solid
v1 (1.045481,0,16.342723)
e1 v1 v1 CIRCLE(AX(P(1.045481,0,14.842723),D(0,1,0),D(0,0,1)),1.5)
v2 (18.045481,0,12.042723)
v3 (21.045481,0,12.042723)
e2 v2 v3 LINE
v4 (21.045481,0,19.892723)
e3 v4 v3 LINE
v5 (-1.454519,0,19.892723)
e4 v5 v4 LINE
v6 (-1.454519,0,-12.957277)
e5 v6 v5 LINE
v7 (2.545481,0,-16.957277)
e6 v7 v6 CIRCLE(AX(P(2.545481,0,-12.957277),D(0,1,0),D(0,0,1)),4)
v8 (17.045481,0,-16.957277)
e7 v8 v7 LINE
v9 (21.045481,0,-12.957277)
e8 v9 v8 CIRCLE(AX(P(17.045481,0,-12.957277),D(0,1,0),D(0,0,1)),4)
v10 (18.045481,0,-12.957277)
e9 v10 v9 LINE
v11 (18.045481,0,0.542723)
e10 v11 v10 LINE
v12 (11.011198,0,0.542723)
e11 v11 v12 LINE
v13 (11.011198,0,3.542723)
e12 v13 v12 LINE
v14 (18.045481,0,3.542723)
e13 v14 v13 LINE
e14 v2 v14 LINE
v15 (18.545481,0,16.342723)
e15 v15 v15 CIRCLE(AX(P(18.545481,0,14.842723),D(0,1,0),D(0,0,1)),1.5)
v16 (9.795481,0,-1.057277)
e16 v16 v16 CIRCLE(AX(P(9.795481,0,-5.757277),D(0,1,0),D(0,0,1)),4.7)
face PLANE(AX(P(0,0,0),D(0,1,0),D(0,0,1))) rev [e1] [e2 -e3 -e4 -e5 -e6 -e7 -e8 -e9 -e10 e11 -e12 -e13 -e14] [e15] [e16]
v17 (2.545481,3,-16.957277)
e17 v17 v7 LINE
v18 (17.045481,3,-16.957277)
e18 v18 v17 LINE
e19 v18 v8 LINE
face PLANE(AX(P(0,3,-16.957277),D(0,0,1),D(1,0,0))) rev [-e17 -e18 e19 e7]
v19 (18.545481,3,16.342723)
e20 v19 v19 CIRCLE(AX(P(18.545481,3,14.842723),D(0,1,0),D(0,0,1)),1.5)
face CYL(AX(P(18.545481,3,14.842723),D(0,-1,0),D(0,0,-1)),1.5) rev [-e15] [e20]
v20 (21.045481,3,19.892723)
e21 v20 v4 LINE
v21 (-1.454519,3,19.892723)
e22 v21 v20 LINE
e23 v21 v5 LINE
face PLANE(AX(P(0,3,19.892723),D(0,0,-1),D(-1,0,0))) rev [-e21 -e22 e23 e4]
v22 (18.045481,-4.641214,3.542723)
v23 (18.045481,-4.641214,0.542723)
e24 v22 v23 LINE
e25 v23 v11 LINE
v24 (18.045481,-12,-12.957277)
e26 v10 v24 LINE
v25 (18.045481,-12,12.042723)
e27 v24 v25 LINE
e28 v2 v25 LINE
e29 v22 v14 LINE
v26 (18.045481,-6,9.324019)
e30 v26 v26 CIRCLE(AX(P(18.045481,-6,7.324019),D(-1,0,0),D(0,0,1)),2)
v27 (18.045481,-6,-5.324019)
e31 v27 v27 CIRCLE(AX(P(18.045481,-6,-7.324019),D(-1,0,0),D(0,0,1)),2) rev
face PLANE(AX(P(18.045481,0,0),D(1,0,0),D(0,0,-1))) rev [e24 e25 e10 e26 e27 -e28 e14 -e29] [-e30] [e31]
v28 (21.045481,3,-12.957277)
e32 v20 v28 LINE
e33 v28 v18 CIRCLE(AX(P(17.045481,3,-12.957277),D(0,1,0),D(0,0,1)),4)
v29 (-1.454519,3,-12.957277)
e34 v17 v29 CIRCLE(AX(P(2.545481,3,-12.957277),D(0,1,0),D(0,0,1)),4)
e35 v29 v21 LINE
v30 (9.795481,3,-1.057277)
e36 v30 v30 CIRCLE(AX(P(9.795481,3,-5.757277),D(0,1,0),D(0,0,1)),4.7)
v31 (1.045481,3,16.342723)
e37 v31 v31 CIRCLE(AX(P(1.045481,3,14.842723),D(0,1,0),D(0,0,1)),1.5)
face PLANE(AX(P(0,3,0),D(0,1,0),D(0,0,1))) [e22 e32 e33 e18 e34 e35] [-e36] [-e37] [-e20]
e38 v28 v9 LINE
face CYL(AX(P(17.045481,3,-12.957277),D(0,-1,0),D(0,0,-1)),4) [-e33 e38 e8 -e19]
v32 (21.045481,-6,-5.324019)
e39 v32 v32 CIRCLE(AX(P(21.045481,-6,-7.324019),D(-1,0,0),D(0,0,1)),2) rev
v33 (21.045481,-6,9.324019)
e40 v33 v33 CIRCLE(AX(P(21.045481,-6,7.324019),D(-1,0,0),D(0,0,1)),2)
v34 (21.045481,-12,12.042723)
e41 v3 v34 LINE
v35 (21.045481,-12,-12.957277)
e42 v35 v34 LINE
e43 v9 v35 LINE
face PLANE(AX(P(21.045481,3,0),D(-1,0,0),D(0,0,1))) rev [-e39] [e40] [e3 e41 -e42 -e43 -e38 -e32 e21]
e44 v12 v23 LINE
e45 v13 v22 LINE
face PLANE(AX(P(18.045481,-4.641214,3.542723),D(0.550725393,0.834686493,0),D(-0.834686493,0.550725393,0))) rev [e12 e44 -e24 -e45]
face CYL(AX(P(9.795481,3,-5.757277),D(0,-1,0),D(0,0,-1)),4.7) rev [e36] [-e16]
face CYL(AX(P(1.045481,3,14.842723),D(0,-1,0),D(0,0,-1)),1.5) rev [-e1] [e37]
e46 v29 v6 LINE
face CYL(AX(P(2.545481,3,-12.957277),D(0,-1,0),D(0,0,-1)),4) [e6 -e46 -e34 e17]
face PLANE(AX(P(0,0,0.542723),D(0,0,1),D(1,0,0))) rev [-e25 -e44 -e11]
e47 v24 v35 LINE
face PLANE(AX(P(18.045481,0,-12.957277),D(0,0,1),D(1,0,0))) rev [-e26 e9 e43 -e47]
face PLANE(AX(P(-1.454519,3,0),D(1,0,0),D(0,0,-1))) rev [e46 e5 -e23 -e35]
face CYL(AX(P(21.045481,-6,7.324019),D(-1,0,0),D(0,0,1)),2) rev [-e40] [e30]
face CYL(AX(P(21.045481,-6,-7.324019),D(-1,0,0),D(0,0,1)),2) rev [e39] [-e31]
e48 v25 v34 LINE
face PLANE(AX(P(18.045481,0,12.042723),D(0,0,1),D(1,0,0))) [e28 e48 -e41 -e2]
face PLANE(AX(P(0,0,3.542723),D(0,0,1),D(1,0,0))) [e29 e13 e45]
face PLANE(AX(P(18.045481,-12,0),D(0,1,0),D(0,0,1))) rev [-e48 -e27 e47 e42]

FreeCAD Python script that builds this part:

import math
import FreeCAD as App
import Part
import Sketcher
from FreeCAD import Vector

doc = App.newDocument("Part")
body = doc.addObject("PartDesign::Body", "Body")

# Sketch on XZ plane
sketch1 = body.newObject("Sketcher::SketchObject", "Sketch")
sketch1.AttachmentSupport = (doc.getObject("XZ_Plane"), [""])
sketch1.MapMode = "FlatFace"
sketch1.addGeometry([
    Part.ArcOfCircle(Part.Circle(Vector(17, -13, 0), Vector(0, 0, 1), 4), math.radians(-90), math.radians(0)),  # 0
    Part.LineSegment(Vector(17, -17, 0), Vector(2.5, -17, 0)),  # 1
    Part.ArcOfCircle(Part.Circle(Vector(2.5, -13, 0), Vector(0, 0, 1), 4), math.radians(180), math.radians(270)),  # 2
    Part.LineSegment(Vector(-1.5, -13, 0), Vector(-1.5, 19.9, 0)),  # 3
    Part.LineSegment(Vector(-1.5, 19.9, 0), Vector(21, 19.9, 0)),  # 4
    Part.LineSegment(Vector(21, 19.9, 0), Vector(21, -13, 0)),  # 5
    Part.Circle(Vector(1, 14.8, 0), Vector(0, 0, 1), 1.5),  # 6
    Part.Circle(Vector(18.5, 14.8, 0), Vector(0, 0, 1), 1.5),  # 7
    Part.Circle(Vector(9.8, -5.8, 0), Vector(0, 0, 1), 4.7),  # 8
], False)
sketch1.addConstraint([
    Sketcher.Constraint("Tangent", 0, 1, 1, 1),
    Sketcher.Constraint("Tangent", 1, 2, 2, 2),
    Sketcher.Constraint("Tangent", 2, 1, 3, 1),
    Sketcher.Constraint("Coincident", 3, 2, 4, 1),
    Sketcher.Constraint("Coincident", 4, 2, 5, 1),
    Sketcher.Constraint("Tangent", 5, 2, 0, 2),
    Sketcher.Constraint("Horizontal", 1),
    Sketcher.Constraint("Vertical", 3),
    Sketcher.Constraint("Horizontal", 4),
    Sketcher.Constraint("Vertical", 5),
    Sketcher.Constraint("Equal", 0, 2),
    Sketcher.Constraint("Equal", 6, 7),
    Sketcher.Constraint("Horizontal", 6, 3, 7, 3),
    Sketcher.Constraint("Diameter", 6, 3.0),
    Sketcher.Constraint("Radius", 0, 4.0),
    Sketcher.Constraint("Diameter", 8, 9.4),
    Sketcher.Constraint("DistanceX", 1, 2, 1, 1, 14.5),
    Sketcher.Constraint("DistanceX", 6, 3, 0, 3, 16.0),
    Sketcher.Constraint("DistanceX", 2, 3, 7, 3, 16.0),
    Sketcher.Constraint("DistanceY", 3, 1, 3, 2, 32.85),
    Sketcher.Constraint("DistanceY", 2, 3, 6, 3, 27.8),
    Sketcher.Constraint("DistanceY", 0, 3, 8, 3, 7.2),
    Sketcher.Constraint("DistanceX", 8, 3, 0, 3, 7.25),
    Sketcher.Constraint("DistanceX", -1, 1, 0, 3, 17.045481),
    Sketcher.Constraint("DistanceY", 0, 3, -1, 1, 12.957277),
])
pad1 = body.newObject("PartDesign::Pad", "Pad")
pad1.Profile = sketch1
pad1.Length = 3
pad1.Reversed = True

# Sketch on YZ plane
sketch2 = body.newObject("Sketcher::SketchObject", "Sketch001")
sketch2.AttachmentSupport = (doc.getObject("YZ_Plane"), [""])
sketch2.MapMode = "FlatFace"
sketch2.AttachmentOffset = App.Placement(Vector(0, 0, 21.045481), App.Rotation())
sketch2.addGeometry([
    Part.LineSegment(Vector(0, 12, 0), Vector(-12, 12, 0)),
    Part.LineSegment(Vector(-12, 12, 0), Vector(-12, -13, 0)),
    Part.LineSegment(Vector(-12, -13, 0), Vector(0, -13, 0)),
    Part.LineSegment(Vector(0, -13, 0), Vector(0, 12, 0)),
], False)
sketch2.addConstraint([
    Sketcher.Constraint("Coincident", 0, 2, 1, 1),
    Sketcher.Constraint("Coincident", 1, 2, 2, 1),
    Sketcher.Constraint("Coincident", 2, 2, 3, 1),
    Sketcher.Constraint("Coincident", 3, 2, 0, 1),
    Sketcher.Constraint("Horizontal", 0),
    Sketcher.Constraint("Vertical", 1),
    Sketcher.Constraint("Horizontal", 2),
    Sketcher.Constraint("Vertical", 3),
    Sketcher.Constraint("PointOnObject", 2, 2, -2),
    Sketcher.Constraint("DistanceX", 0, 2, 0, 1, 12.0),
    Sketcher.Constraint("DistanceY", 1, 2, 1, 1, 25.0),
    Sketcher.Constraint("DistanceY", -1, 1, 0, 2, 12.042723),
])
pad2 = body.newObject("PartDesign::Pad", "Pad001")
pad2.Profile = sketch2
pad2.Length = 3
pad2.Reversed = True

# Sketch on YZ plane
sketch3 = body.newObject("Sketcher::SketchObject", "Sketch002")
sketch3.AttachmentSupport = (doc.getObject("YZ_Plane"), [""])
sketch3.MapMode = "FlatFace"
sketch3.AttachmentOffset = App.Placement(Vector(0, 0, 18.045481), App.Rotation())
sketch3.addGeometry([
    Part.Circle(Vector(-6, 7.3, 0), Vector(0, 0, 1), 2),
    Part.Circle(Vector(-6, -7.3, 0), Vector(0, 0, 1), 2),
], False)
sketch3.addConstraint([
    Sketcher.Constraint("Equal", 0, 1),
    Sketcher.Constraint("Symmetric", 0, 3, 1, 3, -1),
    Sketcher.Constraint("Diameter", 0, 4.0),
    Sketcher.Constraint("DistanceX", 0, 3, -1, 1, 6.0),
    Sketcher.Constraint("DistanceY", -1, 1, 0, 3, 7.324019),
])
pocket1 = body.newObject("PartDesign::Pocket", "Pocket")
pocket1.Profile = sketch3
pocket1.Type = "ThroughAll"
pocket1.Reversed = True

# Sketch on XY plane
sketch4 = body.newObject("Sketcher::SketchObject", "Sketch003")
sketch4.AttachmentSupport = (doc.getObject("XY_Plane"), [""])
sketch4.MapMode = "FlatFace"
sketch4.AttachmentOffset = App.Placement(Vector(0, 0, 2.042723), App.Rotation())
sketch4.addGeometry([
    Part.LineSegment(Vector(11, 0, 0), Vector(18, -4.6, 0)),
    Part.LineSegment(Vector(18, -4.6, 0), Vector(18, 0, 0)),
    Part.LineSegment(Vector(18, 0, 0), Vector(11, 0, 0)),
], False)
sketch4.addConstraint([
    Sketcher.Constraint("Coincident", 0, 2, 1, 1),
    Sketcher.Constraint("Coincident", 1, 2, 2, 1),
    Sketcher.Constraint("Coincident", 2, 2, 0, 1),
    Sketcher.Constraint("Vertical", 1),
    Sketcher.Constraint("Horizontal", 2),
    Sketcher.Constraint("PointOnObject", 1, 2, -1),
    Sketcher.Constraint("DistanceX", 2, 2, 2, 1, 7.034283),
    Sketcher.Constraint("DistanceY", 1, 1, 1, 2, 4.641214),
    Sketcher.Constraint("DistanceX", -1, 1, 0, 2, 18.045481),
])
pad3 = body.newObject("PartDesign::Pad", "Pad002")
pad3.Profile = sketch4
pad3.Length = 3
pad3.Midplane = True

doc.recompute()
